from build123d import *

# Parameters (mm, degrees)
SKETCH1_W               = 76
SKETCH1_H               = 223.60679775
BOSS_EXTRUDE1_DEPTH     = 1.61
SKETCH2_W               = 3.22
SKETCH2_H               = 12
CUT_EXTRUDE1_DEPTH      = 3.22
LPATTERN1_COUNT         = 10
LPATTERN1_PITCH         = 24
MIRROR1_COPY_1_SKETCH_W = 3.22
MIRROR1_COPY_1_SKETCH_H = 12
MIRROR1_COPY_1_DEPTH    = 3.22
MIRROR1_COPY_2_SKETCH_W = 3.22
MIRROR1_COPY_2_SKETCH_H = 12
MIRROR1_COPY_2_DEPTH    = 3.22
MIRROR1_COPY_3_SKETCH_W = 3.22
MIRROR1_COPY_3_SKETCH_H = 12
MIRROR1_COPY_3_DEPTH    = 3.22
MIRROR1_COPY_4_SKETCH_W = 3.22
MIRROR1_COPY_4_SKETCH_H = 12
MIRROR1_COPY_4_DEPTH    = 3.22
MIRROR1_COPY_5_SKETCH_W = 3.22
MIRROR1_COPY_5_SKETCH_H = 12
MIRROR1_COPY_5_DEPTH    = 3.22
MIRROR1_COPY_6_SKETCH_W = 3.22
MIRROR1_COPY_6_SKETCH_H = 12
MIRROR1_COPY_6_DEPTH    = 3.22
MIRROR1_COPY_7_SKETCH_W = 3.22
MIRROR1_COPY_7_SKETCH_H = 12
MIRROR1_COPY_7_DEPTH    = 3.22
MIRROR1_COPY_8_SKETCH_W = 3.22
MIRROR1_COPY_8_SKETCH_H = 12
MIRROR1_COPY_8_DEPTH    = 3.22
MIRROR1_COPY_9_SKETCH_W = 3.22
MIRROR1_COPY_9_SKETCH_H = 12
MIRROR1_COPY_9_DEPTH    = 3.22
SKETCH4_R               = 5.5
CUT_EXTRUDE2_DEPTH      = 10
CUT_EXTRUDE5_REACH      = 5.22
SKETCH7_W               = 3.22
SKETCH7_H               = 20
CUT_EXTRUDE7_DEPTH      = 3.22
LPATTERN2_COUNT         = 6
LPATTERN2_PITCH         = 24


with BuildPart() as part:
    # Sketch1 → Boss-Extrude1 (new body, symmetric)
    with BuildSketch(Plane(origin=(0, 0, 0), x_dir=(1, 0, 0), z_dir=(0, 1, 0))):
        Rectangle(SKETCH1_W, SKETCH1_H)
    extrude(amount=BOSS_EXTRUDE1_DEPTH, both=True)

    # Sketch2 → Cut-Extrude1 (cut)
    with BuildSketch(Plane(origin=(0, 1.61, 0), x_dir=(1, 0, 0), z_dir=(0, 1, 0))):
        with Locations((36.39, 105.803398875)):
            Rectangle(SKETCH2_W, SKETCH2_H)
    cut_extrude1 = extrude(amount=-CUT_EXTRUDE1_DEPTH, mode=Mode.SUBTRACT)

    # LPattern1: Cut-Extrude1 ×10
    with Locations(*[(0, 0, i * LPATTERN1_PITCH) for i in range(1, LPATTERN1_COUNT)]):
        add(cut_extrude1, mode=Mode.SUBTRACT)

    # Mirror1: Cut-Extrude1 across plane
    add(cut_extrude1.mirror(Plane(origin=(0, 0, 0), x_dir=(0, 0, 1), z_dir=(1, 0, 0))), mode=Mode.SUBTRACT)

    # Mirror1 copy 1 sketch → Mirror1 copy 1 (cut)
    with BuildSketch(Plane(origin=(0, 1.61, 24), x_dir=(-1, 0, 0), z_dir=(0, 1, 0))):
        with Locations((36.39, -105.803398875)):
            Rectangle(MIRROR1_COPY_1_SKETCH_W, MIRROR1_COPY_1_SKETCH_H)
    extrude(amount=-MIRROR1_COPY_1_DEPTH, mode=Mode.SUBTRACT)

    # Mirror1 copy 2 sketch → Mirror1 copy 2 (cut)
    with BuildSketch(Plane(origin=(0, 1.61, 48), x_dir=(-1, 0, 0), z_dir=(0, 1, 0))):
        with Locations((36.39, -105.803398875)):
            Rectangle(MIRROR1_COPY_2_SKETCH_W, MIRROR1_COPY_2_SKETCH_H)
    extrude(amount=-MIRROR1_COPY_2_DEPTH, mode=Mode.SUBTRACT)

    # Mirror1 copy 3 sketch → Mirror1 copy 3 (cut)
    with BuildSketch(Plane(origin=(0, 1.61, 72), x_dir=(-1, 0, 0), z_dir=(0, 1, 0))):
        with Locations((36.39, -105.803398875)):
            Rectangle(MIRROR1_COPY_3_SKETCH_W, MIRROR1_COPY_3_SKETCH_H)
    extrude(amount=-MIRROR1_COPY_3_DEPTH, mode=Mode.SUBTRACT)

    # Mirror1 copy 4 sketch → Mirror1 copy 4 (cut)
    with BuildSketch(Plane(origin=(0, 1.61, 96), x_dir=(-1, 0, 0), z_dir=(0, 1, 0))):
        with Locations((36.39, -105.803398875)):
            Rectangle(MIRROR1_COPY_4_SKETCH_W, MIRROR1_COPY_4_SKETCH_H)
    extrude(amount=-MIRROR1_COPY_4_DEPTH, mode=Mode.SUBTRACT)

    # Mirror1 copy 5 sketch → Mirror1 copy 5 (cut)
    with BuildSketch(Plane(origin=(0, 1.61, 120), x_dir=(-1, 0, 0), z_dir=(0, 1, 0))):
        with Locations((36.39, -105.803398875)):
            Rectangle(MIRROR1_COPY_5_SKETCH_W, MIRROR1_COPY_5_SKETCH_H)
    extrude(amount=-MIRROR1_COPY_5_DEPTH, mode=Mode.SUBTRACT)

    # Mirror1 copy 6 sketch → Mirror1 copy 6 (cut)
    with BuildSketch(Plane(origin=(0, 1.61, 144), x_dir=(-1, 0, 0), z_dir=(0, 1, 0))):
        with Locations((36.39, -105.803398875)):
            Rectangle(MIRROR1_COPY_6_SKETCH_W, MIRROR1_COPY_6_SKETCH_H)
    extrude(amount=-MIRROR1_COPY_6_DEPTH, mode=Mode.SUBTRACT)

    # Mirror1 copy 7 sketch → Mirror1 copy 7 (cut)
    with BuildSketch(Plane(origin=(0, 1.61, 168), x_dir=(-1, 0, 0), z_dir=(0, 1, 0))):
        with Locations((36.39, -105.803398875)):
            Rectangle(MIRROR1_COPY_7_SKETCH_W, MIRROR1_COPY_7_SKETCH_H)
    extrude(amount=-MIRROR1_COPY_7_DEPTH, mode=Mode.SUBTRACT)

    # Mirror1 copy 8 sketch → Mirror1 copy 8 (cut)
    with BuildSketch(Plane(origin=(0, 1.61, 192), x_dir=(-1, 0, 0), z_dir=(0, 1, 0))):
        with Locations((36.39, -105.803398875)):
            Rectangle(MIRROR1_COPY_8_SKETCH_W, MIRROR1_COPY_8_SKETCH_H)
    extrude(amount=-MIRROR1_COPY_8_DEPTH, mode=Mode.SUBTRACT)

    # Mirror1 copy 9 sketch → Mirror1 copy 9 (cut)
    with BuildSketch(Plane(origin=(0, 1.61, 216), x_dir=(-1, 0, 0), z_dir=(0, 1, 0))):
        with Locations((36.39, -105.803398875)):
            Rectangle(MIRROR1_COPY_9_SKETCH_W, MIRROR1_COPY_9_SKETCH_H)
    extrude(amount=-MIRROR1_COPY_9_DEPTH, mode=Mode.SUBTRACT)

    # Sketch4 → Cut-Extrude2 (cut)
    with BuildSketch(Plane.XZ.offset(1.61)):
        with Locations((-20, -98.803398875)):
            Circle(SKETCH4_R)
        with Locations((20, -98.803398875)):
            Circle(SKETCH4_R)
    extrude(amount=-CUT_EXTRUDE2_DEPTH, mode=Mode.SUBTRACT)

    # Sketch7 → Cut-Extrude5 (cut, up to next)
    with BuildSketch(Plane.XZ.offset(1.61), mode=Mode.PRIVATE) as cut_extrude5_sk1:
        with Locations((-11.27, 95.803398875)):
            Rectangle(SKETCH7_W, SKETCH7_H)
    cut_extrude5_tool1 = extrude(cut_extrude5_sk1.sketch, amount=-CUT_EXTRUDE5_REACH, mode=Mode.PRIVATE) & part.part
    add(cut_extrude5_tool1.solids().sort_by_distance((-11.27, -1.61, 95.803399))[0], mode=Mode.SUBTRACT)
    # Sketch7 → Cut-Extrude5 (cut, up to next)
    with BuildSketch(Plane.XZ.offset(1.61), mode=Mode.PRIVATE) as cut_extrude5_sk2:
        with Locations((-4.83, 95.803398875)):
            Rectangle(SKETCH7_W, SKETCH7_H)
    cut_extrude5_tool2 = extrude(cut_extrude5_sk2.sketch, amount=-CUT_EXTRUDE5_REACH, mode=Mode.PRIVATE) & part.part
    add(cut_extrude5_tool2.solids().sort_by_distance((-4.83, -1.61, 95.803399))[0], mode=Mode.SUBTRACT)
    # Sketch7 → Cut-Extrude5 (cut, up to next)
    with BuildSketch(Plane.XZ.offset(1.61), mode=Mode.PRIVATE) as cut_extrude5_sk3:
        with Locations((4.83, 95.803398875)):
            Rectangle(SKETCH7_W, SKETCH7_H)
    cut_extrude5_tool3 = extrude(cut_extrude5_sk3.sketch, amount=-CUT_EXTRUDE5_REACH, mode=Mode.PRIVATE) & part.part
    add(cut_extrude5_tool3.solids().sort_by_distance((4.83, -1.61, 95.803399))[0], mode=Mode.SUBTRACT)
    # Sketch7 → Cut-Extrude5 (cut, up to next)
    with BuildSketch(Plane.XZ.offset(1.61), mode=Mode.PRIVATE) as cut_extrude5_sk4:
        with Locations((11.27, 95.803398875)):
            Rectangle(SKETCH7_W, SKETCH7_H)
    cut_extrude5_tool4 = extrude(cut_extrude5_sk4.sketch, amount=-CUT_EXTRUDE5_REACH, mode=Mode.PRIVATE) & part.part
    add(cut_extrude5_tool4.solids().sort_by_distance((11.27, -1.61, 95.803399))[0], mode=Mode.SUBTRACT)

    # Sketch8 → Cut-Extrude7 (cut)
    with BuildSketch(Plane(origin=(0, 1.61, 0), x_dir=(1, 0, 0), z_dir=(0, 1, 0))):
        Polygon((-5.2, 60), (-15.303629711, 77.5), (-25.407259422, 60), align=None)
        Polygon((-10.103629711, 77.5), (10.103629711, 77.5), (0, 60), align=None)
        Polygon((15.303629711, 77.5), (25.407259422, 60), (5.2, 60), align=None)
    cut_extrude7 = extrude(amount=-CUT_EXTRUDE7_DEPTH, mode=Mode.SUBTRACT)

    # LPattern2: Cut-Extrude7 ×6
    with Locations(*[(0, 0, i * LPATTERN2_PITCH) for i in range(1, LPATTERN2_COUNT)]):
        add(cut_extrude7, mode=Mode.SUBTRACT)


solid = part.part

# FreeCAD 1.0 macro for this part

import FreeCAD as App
import Part
import Sketcher

V = App.Vector
Q = App.Units.Quantity

doc = App.newDocument("Part")
body = doc.addObject("PartDesign::Body", "Body")

sketch1 = doc.addObject("Sketcher::SketchObject", "Sketch")
body.addObject(sketch1)
sketch1.AttachmentSupport = (doc.XZ_Plane, [""])
sketch1.MapMode = "FlatFace"
sketch1.addGeometry([
    Part.LineSegment(V(-38, -112, 0), V(-38, 112, 0)),
    Part.LineSegment(V(-38, 112, 0), V(38, 112, 0)),
    Part.LineSegment(V(38, 112, 0), V(38, -112, 0)),
    Part.LineSegment(V(38, -112, 0), V(-38, -112, 0)),
], False)
sketch1.addConstraint([
    Sketcher.Constraint("Coincident", 0, 2, 1, 1),
    Sketcher.Constraint("Coincident", 1, 2, 2, 1),
    Sketcher.Constraint("Coincident", 2, 2, 3, 1),
    Sketcher.Constraint("Coincident", 3, 2, 0, 1),
    Sketcher.Constraint("Vertical", 0),
    Sketcher.Constraint("Horizontal", 1),
    Sketcher.Constraint("Vertical", 2),
    Sketcher.Constraint("Horizontal", 3),
    Sketcher.Constraint("Symmetric", 0, 2, 2, 2, -1, 1),
    Sketcher.Constraint("DistanceX", 1, 1, 1, 2, 76.0),
    Sketcher.Constraint("DistanceY", -1, 1, 0, 2, 111.803399),
])
pad1 = doc.addObject("PartDesign::Pad", "Pad")
body.addObject(pad1)
pad1.Profile = sketch1
pad1.Length = 3.22
pad1.Midplane = True

sketch2 = doc.addObject("Sketcher::SketchObject", "Sketch001")
body.addObject(sketch2)
sketch2.AttachmentSupport = (doc.XZ_Plane, [""])
sketch2.MapMode = "FlatFace"
sketch2.AttachmentOffset = App.Placement(V(0, 0, -1.61), App.Rotation())
sketch2.addGeometry([
    Part.LineSegment(V(34.8, -111.8, 0), V(34.8, -99.8, 0)),
    Part.LineSegment(V(34.8, -99.8, 0), V(38, -99.8, 0)),
    Part.LineSegment(V(38, -99.8, 0), V(38, -111.8, 0)),
    Part.LineSegment(V(38, -111.8, 0), V(34.8, -111.8, 0)),
], False)
sketch2.addConstraint([
    Sketcher.Constraint("Coincident", 0, 2, 1, 1),
    Sketcher.Constraint("Coincident", 1, 2, 2, 1),
    Sketcher.Constraint("Coincident", 2, 2, 3, 1),
    Sketcher.Constraint("Coincident", 3, 2, 0, 1),
    Sketcher.Constraint("Vertical", 0),
    Sketcher.Constraint("Horizontal", 1),
    Sketcher.Constraint("Vertical", 2),
    Sketcher.Constraint("Horizontal", 3),
    Sketcher.Constraint("DistanceY", 0, 1, 0, 2, 12.0),
    Sketcher.Constraint("DistanceX", -1, 1, 1, 2, 38.0),
    Sketcher.Constraint("DistanceX", 1, 1, 1, 2, 3.22),
    Sketcher.Constraint("DistanceY", 0, 2, -1, 1, 99.803399),
])
pocket1 = doc.addObject("PartDesign::Pocket", "Pocket")
body.addObject(pocket1)
pocket1.Profile = sketch2
pocket1.Length = 3.22
pocket1.Reversed = True
doc.recompute()

linearpattern = doc.addObject("PartDesign::LinearPattern", "LinearPattern")
body.addObject(linearpattern)
linearpattern.Originals = [pocket1]
linearpattern.Direction = (doc.Z_Axis, [""])
linearpattern.Mode = "offset"
linearpattern.Offset = 24
linearpattern.Occurrences = 10
body.Tip = linearpattern
doc.recompute()

mirrored = doc.addObject("PartDesign::Mirrored", "Mirrored")
body.addObject(mirrored)
mirrored.Originals = [pocket1]
mirrored.MirrorPlane = (doc.YZ_Plane, [""])
body.Tip = mirrored

sketch3 = doc.addObject("Sketcher::SketchObject", "Sketch002")
body.addObject(sketch3)
sketch3.AttachmentSupport = (doc.XZ_Plane, [""])
sketch3.MapMode = "FlatFace"
sketch3.AttachmentOffset = App.Placement(V(0, 0, -1.61), App.Rotation())
sketch3.addGeometry([
    Part.LineSegment(V(-34.8, -75.8, 0), V(-34.8, -87.8, 0)),
    Part.LineSegment(V(-34.8, -87.8, 0), V(-38, -87.8, 0)),
    Part.LineSegment(V(-38, -87.8, 0), V(-38, -75.8, 0)),
    Part.LineSegment(V(-38, -75.8, 0), V(-34.8, -75.8, 0)),
], False)
sketch3.addConstraint([
    Sketcher.Constraint("Coincident", 0, 2, 1, 1),
    Sketcher.Constraint("Coincident", 1, 2, 2, 1),
    Sketcher.Constraint("Coincident", 2, 2, 3, 1),
    Sketcher.Constraint("Coincident", 3, 2, 0, 1),
    Sketcher.Constraint("Vertical", 0),
    Sketcher.Constraint("Horizontal", 1),
    Sketcher.Constraint("Vertical", 2),
    Sketcher.Constraint("Horizontal", 3),
    Sketcher.Constraint("DistanceY", 0, 2, 0, 1, 12.0),
    Sketcher.Constraint("DistanceX", 1, 2, -1, 1, 38.0),
    Sketcher.Constraint("DistanceX", 1, 2, 1, 1, 3.22),
    Sketcher.Constraint("DistanceY", 0, 2, -1, 1, 87.803399),
])
pocket2 = doc.addObject("PartDesign::Pocket", "Pocket001")
body.addObject(pocket2)
pocket2.Profile = sketch3
pocket2.Length = 3.22
pocket2.Reversed = True

sketch4 = doc.addObject("Sketcher::SketchObject", "Sketch003")
body.addObject(sketch4)
sketch4.AttachmentSupport = (doc.XZ_Plane, [""])
sketch4.MapMode = "FlatFace"
sketch4.AttachmentOffset = App.Placement(V(0, 0, -1.61), App.Rotation())
sketch4.addGeometry([
    Part.LineSegment(V(-34.8, -51.8, 0), V(-34.8, -63.8, 0)),
    Part.LineSegment(V(-34.8, -63.8, 0), V(-38, -63.8, 0)),
    Part.LineSegment(V(-38, -63.8, 0), V(-38, -51.8, 0)),
    Part.LineSegment(V(-38, -51.8, 0), V(-34.8, -51.8, 0)),
], False)
sketch4.addConstraint([
    Sketcher.Constraint("Coincident", 0, 2, 1, 1),
    Sketcher.Constraint("Coincident", 1, 2, 2, 1),
    Sketcher.Constraint("Coincident", 2, 2, 3, 1),
    Sketcher.Constraint("Coincident", 3, 2, 0, 1),
    Sketcher.Constraint("Vertical", 0),
    Sketcher.Constraint("Horizontal", 1),
    Sketcher.Constraint("Vertical", 2),
    Sketcher.Constraint("Horizontal", 3),
    Sketcher.Constraint("DistanceY", 0, 2, 0, 1, 12.0),
    Sketcher.Constraint("DistanceX", 1, 2, -1, 1, 38.0),
    Sketcher.Constraint("DistanceX", 1, 2, 1, 1, 3.22),
    Sketcher.Constraint("DistanceY", 0, 2, -1, 1, 63.803399),
])
pocket3 = doc.addObject("PartDesign::Pocket", "Pocket002")
body.addObject(pocket3)
pocket3.Profile = sketch4
pocket3.Length = 3.22
pocket3.Reversed = True

sketch5 = doc.addObject("Sketcher::SketchObject", "Sketch004")
body.addObject(sketch5)
sketch5.AttachmentSupport = (doc.XZ_Plane, [""])
sketch5.MapMode = "FlatFace"
sketch5.AttachmentOffset = App.Placement(V(0, 0, -1.61), App.Rotation())
sketch5.addGeometry([
    Part.LineSegment(V(-34.8, -27.8, 0), V(-34.8, -39.8, 0)),
    Part.LineSegment(V(-34.8, -39.8, 0), V(-38, -39.8, 0)),
    Part.LineSegment(V(-38, -39.8, 0), V(-38, -27.8, 0)),
    Part.LineSegment(V(-38, -27.8, 0), V(-34.8, -27.8, 0)),
], False)
sketch5.addConstraint([
    Sketcher.Constraint("Coincident", 0, 2, 1, 1),
    Sketcher.Constraint("Coincident", 1, 2, 2, 1),
    Sketcher.Constraint("Coincident", 2, 2, 3, 1),
    Sketcher.Constraint("Coincident", 3, 2, 0, 1),
    Sketcher.Constraint("Vertical", 0),
    Sketcher.Constraint("Horizontal", 1),
    Sketcher.Constraint("Vertical", 2),
    Sketcher.Constraint("Horizontal", 3),
    Sketcher.Constraint("DistanceY", 0, 2, 0, 1, 12.0),
    Sketcher.Constraint("DistanceX", 1, 2, -1, 1, 38.0),
    Sketcher.Constraint("DistanceX", 1, 2, 1, 1, 3.22),
    Sketcher.Constraint("DistanceY", 0, 2, -1, 1, 39.803399),
])
pocket4 = doc.addObject("PartDesign::Pocket", "Pocket003")
body.addObject(pocket4)
pocket4.Profile = sketch5
pocket4.Length = 3.22
pocket4.Reversed = True

sketch6 = doc.addObject("Sketcher::SketchObject", "Sketch005")
body.addObject(sketch6)
sketch6.AttachmentSupport = (doc.XZ_Plane, [""])
sketch6.MapMode = "FlatFace"
sketch6.AttachmentOffset = App.Placement(V(0, 0, -1.61), App.Rotation())
sketch6.addGeometry([
    Part.LineSegment(V(-34.8, -3.8, 0), V(-34.8, -15.8, 0)),
    Part.LineSegment(V(-34.8, -15.8, 0), V(-38, -15.8, 0)),
    Part.LineSegment(V(-38, -15.8, 0), V(-38, -3.8, 0)),
    Part.LineSegment(V(-38, -3.8, 0), V(-34.8, -3.8, 0)),
], False)
sketch6.addConstraint([
    Sketcher.Constraint("Coincident", 0, 2, 1, 1),
    Sketcher.Constraint("Coincident", 1, 2, 2, 1),
    Sketcher.Constraint("Coincident", 2, 2, 3, 1),
    Sketcher.Constraint("Coincident", 3, 2, 0, 1),
    Sketcher.Constraint("Vertical", 0),
    Sketcher.Constraint("Horizontal", 1),
    Sketcher.Constraint("Vertical", 2),
    Sketcher.Constraint("Horizontal", 3),
    Sketcher.Constraint("DistanceY", 0, 2, 0, 1, 12.0),
    Sketcher.Constraint("DistanceX", 1, 2, -1, 1, 38.0),
    Sketcher.Constraint("DistanceX", 1, 2, 1, 1, 3.22),
    Sketcher.Constraint("DistanceY", 0, 2, -1, 1, 15.803399),
])
pocket5 = doc.addObject("PartDesign::Pocket", "Pocket004")
body.addObject(pocket5)
pocket5.Profile = sketch6
pocket5.Length = 3.22
pocket5.Reversed = True

sketch7 = doc.addObject("Sketcher::SketchObject", "Sketch006")
body.addObject(sketch7)
sketch7.AttachmentSupport = (doc.XZ_Plane, [""])
sketch7.MapMode = "FlatFace"
sketch7.AttachmentOffset = App.Placement(V(0, 0, -1.61), App.Rotation())
sketch7.addGeometry([
    Part.LineSegment(V(-34.8, 20.2, 0), V(-34.8, 8.2, 0)),
    Part.LineSegment(V(-34.8, 8.2, 0), V(-38, 8.2, 0)),
    Part.LineSegment(V(-38, 8.2, 0), V(-38, 20.2, 0)),
    Part.LineSegment(V(-38, 20.2, 0), V(-34.8, 20.2, 0)),
], False)
sketch7.addConstraint([
    Sketcher.Constraint("Coincident", 0, 2, 1, 1),
    Sketcher.Constraint("Coincident", 1, 2, 2, 1),
    Sketcher.Constraint("Coincident", 2, 2, 3, 1),
    Sketcher.Constraint("Coincident", 3, 2, 0, 1),
    Sketcher.Constraint("Vertical", 0),
    Sketcher.Constraint("Horizontal", 1),
    Sketcher.Constraint("Vertical", 2),
    Sketcher.Constraint("Horizontal", 3),
    Sketcher.Constraint("DistanceY", 0, 2, 0, 1, 12.0),
    Sketcher.Constraint("DistanceX", 1, 2, -1, 1, 38.0),
    Sketcher.Constraint("DistanceX", 1, 2, 1, 1, 3.22),
    Sketcher.Constraint("DistanceY", -1, 1, 0, 2, 8.196601),
])
pocket6 = doc.addObject("PartDesign::Pocket", "Pocket005")
body.addObject(pocket6)
pocket6.Profile = sketch7
pocket6.Length = 3.22
pocket6.Reversed = True

sketch8 = doc.addObject("Sketcher::SketchObject", "Sketch007")
body.addObject(sketch8)
sketch8.AttachmentSupport = (doc.XZ_Plane, [""])
sketch8.MapMode = "FlatFace"
sketch8.AttachmentOffset = App.Placement(V(0, 0, -1.61), App.Rotation())
sketch8.addGeometry([
    Part.LineSegment(V(-34.8, 44.2, 0), V(-34.8, 32.2, 0)),
    Part.LineSegment(V(-34.8, 32.2, 0), V(-38, 32.2, 0)),
    Part.LineSegment(V(-38, 32.2, 0), V(-38, 44.2, 0)),
    Part.LineSegment(V(-38, 44.2, 0), V(-34.8, 44.2, 0)),
], False)
sketch8.addConstraint([
    Sketcher.Constraint("Coincident", 0, 2, 1, 1),
    Sketcher.Constraint("Coincident", 1, 2, 2, 1),
    Sketcher.Constraint("Coincident", 2, 2, 3, 1),
    Sketcher.Constraint("Coincident", 3, 2, 0, 1),
    Sketcher.Constraint("Vertical", 0),
    Sketcher.Constraint("Horizontal", 1),
    Sketcher.Constraint("Vertical", 2),
    Sketcher.Constraint("Horizontal", 3),
    Sketcher.Constraint("DistanceY", 0, 2, 0, 1, 12.0),
    Sketcher.Constraint("DistanceX", 1, 2, -1, 1, 38.0),
    Sketcher.Constraint("DistanceX", 1, 2, 1, 1, 3.22),
    Sketcher.Constraint("DistanceY", -1, 1, 0, 2, 32.196601),
])
pocket7 = doc.addObject("PartDesign::Pocket", "Pocket006")
body.addObject(pocket7)
pocket7.Profile = sketch8
pocket7.Length = 3.22
pocket7.Reversed = True

sketch9 = doc.addObject("Sketcher::SketchObject", "Sketch008")
body.addObject(sketch9)
sketch9.AttachmentSupport = (doc.XZ_Plane, [""])
sketch9.MapMode = "FlatFace"
sketch9.AttachmentOffset = App.Placement(V(0, 0, -1.61), App.Rotation())
sketch9.addGeometry([
    Part.LineSegment(V(-34.8, 68.2, 0), V(-34.8, 56.2, 0)),
    Part.LineSegment(V(-34.8, 56.2, 0), V(-38, 56.2, 0)),
    Part.LineSegment(V(-38, 56.2, 0), V(-38, 68.2, 0)),
    Part.LineSegment(V(-38, 68.2, 0), V(-34.8, 68.2, 0)),
], False)
sketch9.addConstraint([
    Sketcher.Constraint("Coincident", 0, 2, 1, 1),
    Sketcher.Constraint("Coincident", 1, 2, 2, 1),
    Sketcher.Constraint("Coincident", 2, 2, 3, 1),
    Sketcher.Constraint("Coincident", 3, 2, 0, 1),
    Sketcher.Constraint("Vertical", 0),
    Sketcher.Constraint("Horizontal", 1),
    Sketcher.Constraint("Vertical", 2),
    Sketcher.Constraint("Horizontal", 3),
    Sketcher.Constraint("DistanceY", 0, 2, 0, 1, 12.0),
    Sketcher.Constraint("DistanceX", 1, 2, -1, 1, 38.0),
    Sketcher.Constraint("DistanceX", 1, 2, 1, 1, 3.22),
    Sketcher.Constraint("DistanceY", -1, 1, 0, 2, 56.196601),
])
pocket8 = doc.addObject("PartDesign::Pocket", "Pocket007")
body.addObject(pocket8)
pocket8.Profile = sketch9
pocket8.Length = 3.22
pocket8.Reversed = True

sketch10 = doc.addObject("Sketcher::SketchObject", "Sketch009")
body.addObject(sketch10)
sketch10.AttachmentSupport = (doc.XZ_Plane, [""])
sketch10.MapMode = "FlatFace"
sketch10.AttachmentOffset = App.Placement(V(0, 0, -1.61), App.Rotation())
sketch10.addGeometry([
    Part.LineSegment(V(-34.8, 92.2, 0), V(-34.8, 80.2, 0)),
    Part.LineSegment(V(-34.8, 80.2, 0), V(-38, 80.2, 0)),
    Part.LineSegment(V(-38, 80.2, 0), V(-38, 92.2, 0)),
    Part.LineSegment(V(-38, 92.2, 0), V(-34.8, 92.2, 0)),
], False)
sketch10.addConstraint([
    Sketcher.Constraint("Coincident", 0, 2, 1, 1),
    Sketcher.Constraint("Coincident", 1, 2, 2, 1),
    Sketcher.Constraint("Coincident", 2, 2, 3, 1),
    Sketcher.Constraint("Coincident", 3, 2, 0, 1),
    Sketcher.Constraint("Vertical", 0),
    Sketcher.Constraint("Horizontal", 1),
    Sketcher.Constraint("Vertical", 2),
    Sketcher.Constraint("Horizontal", 3),
    Sketcher.Constraint("DistanceY", 0, 2, 0, 1, 12.0),
    Sketcher.Constraint("DistanceX", 1, 2, -1, 1, 38.0),
    Sketcher.Constraint("DistanceX", 1, 2, 1, 1, 3.22),
    Sketcher.Constraint("DistanceY", -1, 1, 0, 2, 80.196601),
])
pocket9 = doc.addObject("PartDesign::Pocket", "Pocket008")
body.addObject(pocket9)
pocket9.Profile = sketch10
pocket9.Length = 3.22
pocket9.Reversed = True

sketch11 = doc.addObject("Sketcher::SketchObject", "Sketch010")
body.addObject(sketch11)
sketch11.AttachmentSupport = (doc.XZ_Plane, [""])
sketch11.MapMode = "FlatFace"
sketch11.AttachmentOffset = App.Placement(V(0, 0, -1.61), App.Rotation())
sketch11.addGeometry([
    Part.LineSegment(V(-34.8, 116.2, 0), V(-34.8, 104.2, 0)),
    Part.LineSegment(V(-34.8, 104.2, 0), V(-38, 104.2, 0)),
    Part.LineSegment(V(-38, 104.2, 0), V(-38, 116.2, 0)),
    Part.LineSegment(V(-38, 116.2, 0), V(-34.8, 116.2, 0)),
], False)
sketch11.addConstraint([
    Sketcher.Constraint("Coincident", 0, 2, 1, 1),
    Sketcher.Constraint("Coincident", 1, 2, 2, 1),
    Sketcher.Constraint("Coincident", 2, 2, 3, 1),
    Sketcher.Constraint("Coincident", 3, 2, 0, 1),
    Sketcher.Constraint("Vertical", 0),
    Sketcher.Constraint("Horizontal", 1),
    Sketcher.Constraint("Vertical", 2),
    Sketcher.Constraint("Horizontal", 3),
    Sketcher.Constraint("DistanceY", 0, 2, 0, 1, 12.0),
    Sketcher.Constraint("DistanceX", 1, 2, -1, 1, 38.0),
    Sketcher.Constraint("DistanceX", 1, 2, 1, 1, 3.22),
    Sketcher.Constraint("DistanceY", -1, 1, 0, 2, 104.196601),
])
pocket10 = doc.addObject("PartDesign::Pocket", "Pocket009")
body.addObject(pocket10)
pocket10.Profile = sketch11
pocket10.Length = 3.22
pocket10.Reversed = True

sketch12 = doc.addObject("Sketcher::SketchObject", "Sketch011")
body.addObject(sketch12)
sketch12.AttachmentSupport = (doc.XZ_Plane, [""])
sketch12.MapMode = "FlatFace"
sketch12.AttachmentOffset = App.Placement(V(0, 0, 1.61), App.Rotation())
sketch12.addGeometry([
    Part.Circle(V(-20, -99, 0), V(0, 0, 1), 6),
    Part.Circle(V(20, -99, 0), V(0, 0, 1), 6),
], False)
sketch12.addConstraint([
    Sketcher.Constraint("Equal", 0, 1),
    Sketcher.Constraint("Symmetric", 0, 3, 1, 3, -2),
    Sketcher.Constraint("Diameter", 0, 11.0),
    Sketcher.Constraint("DistanceX", 0, 3, -1, 1, 20.0),
    Sketcher.Constraint("DistanceY", 0, 3, -1, 1, 98.803399),
])
pocket11 = doc.addObject("PartDesign::Pocket", "Pocket010")
body.addObject(pocket11)
pocket11.Profile = sketch12
pocket11.Length = 10

sketch13 = doc.addObject("Sketcher::SketchObject", "Sketch012")
body.addObject(sketch13)
sketch13.AttachmentSupport = (doc.XZ_Plane, [""])
sketch13.MapMode = "FlatFace"
sketch13.AttachmentOffset = App.Placement(V(0, 0, 1.61), App.Rotation())
sketch13.addGeometry([
    Part.LineSegment(V(-12.9, 105.8, 0), V(-12.9, 85.8, 0)),
    Part.LineSegment(V(-12.9, 85.8, 0), V(-9.7, 85.8, 0)),
    Part.LineSegment(V(-9.7, 85.8, 0), V(-9.7, 105.8, 0)),
    Part.LineSegment(V(-9.7, 105.8, 0), V(-12.9, 105.8, 0)),
], False)
sketch13.addConstraint([
    Sketcher.Constraint("Coincident", 0, 2, 1, 1),
    Sketcher.Constraint("Coincident", 1, 2, 2, 1),
    Sketcher.Constraint("Coincident", 2, 2, 3, 1),
    Sketcher.Constraint("Coincident", 3, 2, 0, 1),
    Sketcher.Constraint("Vertical", 0),
    Sketcher.Constraint("Horizontal", 1),
    Sketcher.Constraint("Vertical", 2),
    Sketcher.Constraint("Horizontal", 3),
    Sketcher.Constraint("DistanceY", 0, 2, 0, 1, 20.0),
    Sketcher.Constraint("DistanceX", 1, 1, 1, 2, 3.22),
    Sketcher.Constraint("DistanceX", 0, 2, -1, 1, 12.88),
    Sketcher.Constraint("DistanceY", -1, 1, 0, 2, 85.803399),
])
pocket12 = doc.addObject("PartDesign::Pocket", "Pocket011")
body.addObject(pocket12)
pocket12.Profile = sketch13
pocket12.Type = "UpToFirst"

sketch14 = doc.addObject("Sketcher::SketchObject", "Sketch013")
body.addObject(sketch14)
sketch14.AttachmentSupport = (doc.XZ_Plane, [""])
sketch14.MapMode = "FlatFace"
sketch14.AttachmentOffset = App.Placement(V(0, 0, 1.61), App.Rotation())
sketch14.addGeometry([
    Part.LineSegment(V(-6.4, 105.8, 0), V(-6.4, 85.8, 0)),
    Part.LineSegment(V(-6.4, 85.8, 0), V(-3.2, 85.8, 0)),
    Part.LineSegment(V(-3.2, 85.8, 0), V(-3.2, 105.8, 0)),
    Part.LineSegment(V(-3.2, 105.8, 0), V(-6.4, 105.8, 0)),
], False)
sketch14.addConstraint([
    Sketcher.Constraint("Coincident", 0, 2, 1, 1),
    Sketcher.Constraint("Coincident", 1, 2, 2, 1),
    Sketcher.Constraint("Coincident", 2, 2, 3, 1),
    Sketcher.Constraint("Coincident", 3, 2, 0, 1),
    Sketcher.Constraint("Vertical", 0),
    Sketcher.Constraint("Horizontal", 1),
    Sketcher.Constraint("Vertical", 2),
    Sketcher.Constraint("Horizontal", 3),
    Sketcher.Constraint("DistanceY", 0, 2, 0, 1, 20.0),
    Sketcher.Constraint("DistanceX", 1, 1, 1, 2, 3.22),
    Sketcher.Constraint("DistanceX", 0, 2, -1, 1, 6.44),
    Sketcher.Constraint("DistanceY", -1, 1, 0, 2, 85.803399),
])
pocket13 = doc.addObject("PartDesign::Pocket", "Pocket012")
body.addObject(pocket13)
pocket13.Profile = sketch14
pocket13.Type = "UpToFirst"

sketch15 = doc.addObject("Sketcher::SketchObject", "Sketch014")
body.addObject(sketch15)
sketch15.AttachmentSupport = (doc.XZ_Plane, [""])
sketch15.MapMode = "FlatFace"
sketch15.AttachmentOffset = App.Placement(V(0, 0, 1.61), App.Rotation())
sketch15.addGeometry([
    Part.LineSegment(V(3.2, 105.8, 0), V(3.2, 85.8, 0)),
    Part.LineSegment(V(3.2, 85.8, 0), V(6.4, 85.8, 0)),
    Part.LineSegment(V(6.4, 85.8, 0), V(6.4, 105.8, 0)),
    Part.LineSegment(V(6.4, 105.8, 0), V(3.2, 105.8, 0)),
], False)
sketch15.addConstraint([
    Sketcher.Constraint("Coincident", 0, 2, 1, 1),
    Sketcher.Constraint("Coincident", 1, 2, 2, 1),
    Sketcher.Constraint("Coincident", 2, 2, 3, 1),
    Sketcher.Constraint("Coincident", 3, 2, 0, 1),
    Sketcher.Constraint("Vertical", 0),
    Sketcher.Constraint("Horizontal", 1),
    Sketcher.Constraint("Vertical", 2),
    Sketcher.Constraint("Horizontal", 3),
    Sketcher.Constraint("DistanceY", 0, 2, 0, 1, 20.0),
    Sketcher.Constraint("DistanceX", 1, 1, 1, 2, 3.22),
    Sketcher.Constraint("DistanceX", -1, 1, 0, 2, 3.22),
    Sketcher.Constraint("DistanceY", -1, 1, 0, 2, 85.803399),
])
pocket14 = doc.addObject("PartDesign::Pocket", "Pocket013")
body.addObject(pocket14)
pocket14.Profile = sketch15
pocket14.Type = "UpToFirst"

sketch16 = doc.addObject("Sketcher::SketchObject", "Sketch015")
body.addObject(sketch16)
sketch16.AttachmentSupport = (doc.XZ_Plane, [""])
sketch16.MapMode = "FlatFace"
sketch16.AttachmentOffset = App.Placement(V(0, 0, 1.61), App.Rotation())
sketch16.addGeometry([
    Part.LineSegment(V(9.7, 105.8, 0), V(9.7, 85.8, 0)),
    Part.LineSegment(V(9.7, 85.8, 0), V(12.9, 85.8, 0)),
    Part.LineSegment(V(12.9, 85.8, 0), V(12.9, 105.8, 0)),
    Part.LineSegment(V(12.9, 105.8, 0), V(9.7, 105.8, 0)),
], False)
sketch16.addConstraint([
    Sketcher.Constraint("Coincident", 0, 2, 1, 1),
    Sketcher.Constraint("Coincident", 1, 2, 2, 1),
    Sketcher.Constraint("Coincident", 2, 2, 3, 1),
    Sketcher.Constraint("Coincident", 3, 2, 0, 1),
    Sketcher.Constraint("Vertical", 0),
    Sketcher.Constraint("Horizontal", 1),
    Sketcher.Constraint("Vertical", 2),
    Sketcher.Constraint("Horizontal", 3),
    Sketcher.Constraint("DistanceY", 0, 2, 0, 1, 20.0),
    Sketcher.Constraint("DistanceX", 1, 1, 1, 2, 3.22),
    Sketcher.Constraint("DistanceX", -1, 1, 0, 2, 9.66),
    Sketcher.Constraint("DistanceY", -1, 1, 0, 2, 85.803399),
])
pocket15 = doc.addObject("PartDesign::Pocket", "Pocket014")
body.addObject(pocket15)
pocket15.Profile = sketch16
pocket15.Type = "UpToFirst"

sketch17 = doc.addObject("Sketcher::SketchObject", "Sketch016")
body.addObject(sketch17)
sketch17.AttachmentSupport = (doc.XZ_Plane, [""])
sketch17.MapMode = "FlatFace"
sketch17.AttachmentOffset = App.Placement(V(0, 0, -1.61), App.Rotation())
sketch17.addGeometry([
    Part.LineSegment(V(-5, -60, 0), V(-15, -78, 0)),
    Part.LineSegment(V(-15, -78, 0), V(-25, -60, 0)),
    Part.LineSegment(V(-25, -60, 0), V(-5, -60, 0)),
    Part.LineSegment(V(10, -78, 0), V(-10, -78, 0)),
    Part.LineSegment(V(-10, -78, 0), V(0, -60, 0)),
    Part.LineSegment(V(0, -60, 0), V(10, -78, 0)),
    Part.LineSegment(V(25, -60, 0), V(15, -78, 0)),
    Part.LineSegment(V(15, -78, 0), V(5, -60, 0)),
    Part.LineSegment(V(5, -60, 0), V(25, -60, 0)),
], False)
sketch17.addConstraint([
    Sketcher.Constraint("Coincident", 0, 2, 1, 1),
    Sketcher.Constraint("Coincident", 1, 2, 2, 1),
    Sketcher.Constraint("Coincident", 2, 2, 0, 1),
    Sketcher.Constraint("Coincident", 3, 2, 4, 1),
    Sketcher.Constraint("Coincident", 4, 2, 5, 1),
    Sketcher.Constraint("Coincident", 5, 2, 3, 1),
    Sketcher.Constraint("Coincident", 6, 2, 7, 1),
    Sketcher.Constraint("Coincident", 7, 2, 8, 1),
    Sketcher.Constraint("Coincident", 8, 2, 6, 1),
    Sketcher.Constraint("Horizontal", 2),
    Sketcher.Constraint("Horizontal", 3),
    Sketcher.Constraint("Horizontal", 8),
    Sketcher.Constraint("Symmetric", 0, 2, 6, 2, -2),
    Sketcher.Constraint("Symmetric", 2, 2, 7, 2, -2),
    Sketcher.Constraint("PointOnObject", 4, 2, -2),
    Sketcher.Constraint("Parallel", 0, 4),
    Sketcher.Constraint("Parallel", 1, 5),
    Sketcher.Constraint("Parallel", 4, 6),
    Sketcher.Constraint("Parallel", 5, 7),
    Sketcher.Constraint("Horizontal", 0, 2, 3, 2),
    Sketcher.Constraint("Horizontal", 2, 2, 4, 2),
    Sketcher.Constraint("Angle", 0, Q("-120 deg")),
    Sketcher.Constraint("DistanceY", 1, 2, -1, 1, 60.0),
    Sketcher.Constraint("DistanceY", 0, 2, -1, 1, 77.5),
    Sketcher.Constraint("DistanceX", 2, 2, -1, 1, 5.2),
])
pocket16 = doc.addObject("PartDesign::Pocket", "Pocket015")
body.addObject(pocket16)
pocket16.Profile = sketch17
pocket16.Length = 3.22
pocket16.Reversed = True
doc.recompute()

linearpattern2 = doc.addObject("PartDesign::LinearPattern", "LinearPattern001")
body.addObject(linearpattern2)
linearpattern2.Originals = [pocket16]
linearpattern2.Direction = (doc.Z_Axis, [""])
linearpattern2.Mode = "offset"
linearpattern2.Offset = 24
linearpattern2.Occurrences = 6
body.Tip = linearpattern2

doc.recompute()
